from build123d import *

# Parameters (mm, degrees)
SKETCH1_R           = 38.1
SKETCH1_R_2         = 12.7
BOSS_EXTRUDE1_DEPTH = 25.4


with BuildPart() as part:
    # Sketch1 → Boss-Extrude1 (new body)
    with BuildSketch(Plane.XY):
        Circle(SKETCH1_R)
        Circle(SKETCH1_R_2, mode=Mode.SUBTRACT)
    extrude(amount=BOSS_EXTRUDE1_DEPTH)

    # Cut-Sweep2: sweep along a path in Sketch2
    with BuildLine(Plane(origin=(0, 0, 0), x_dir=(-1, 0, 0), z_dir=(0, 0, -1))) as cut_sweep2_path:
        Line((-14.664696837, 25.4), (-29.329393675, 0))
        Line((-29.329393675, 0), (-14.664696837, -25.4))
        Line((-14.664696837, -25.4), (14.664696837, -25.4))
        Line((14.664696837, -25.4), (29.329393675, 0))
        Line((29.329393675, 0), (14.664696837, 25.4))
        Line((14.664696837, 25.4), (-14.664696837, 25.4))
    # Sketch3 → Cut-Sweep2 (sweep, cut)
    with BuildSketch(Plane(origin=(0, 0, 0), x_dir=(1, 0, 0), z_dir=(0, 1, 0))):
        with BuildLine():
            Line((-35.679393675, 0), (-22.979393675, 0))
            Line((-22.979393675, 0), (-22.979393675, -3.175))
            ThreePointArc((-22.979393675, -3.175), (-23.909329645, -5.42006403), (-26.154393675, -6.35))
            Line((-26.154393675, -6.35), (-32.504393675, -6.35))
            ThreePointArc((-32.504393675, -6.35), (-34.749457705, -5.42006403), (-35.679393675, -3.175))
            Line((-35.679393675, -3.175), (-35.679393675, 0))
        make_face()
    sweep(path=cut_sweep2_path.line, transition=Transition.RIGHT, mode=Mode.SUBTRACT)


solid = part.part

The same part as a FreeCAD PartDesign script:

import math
import FreeCAD as App
import Part
import Sketcher
Q = App.Units.Quantity

doc = App.newDocument("Part")
body = doc.addObject("PartDesign::Body", "Body")

# Sketch on XY plane
sketch1 = body.newObject("Sketcher::SketchObject", "Sketch")
sketch1.AttachmentSupport = (doc.getObject("XY_Plane"), [""])
sketch1.MapMode = "FlatFace"
sketch1.addGeometry([
    Part.Circle(App.Vector(0, 0, 0), App.Vector(0, 0, 1), 38.1),
    Part.Circle(App.Vector(0, 0, 0), App.Vector(0, 0, 1), 12.7),
], False)
sketch1.addConstraint([
    Sketcher.Constraint("Coincident", 0, 3, -1, 1),
    Sketcher.Constraint("Coincident", 1, 3, -1, 1),
    Sketcher.Constraint("Diameter", 0, Q("3 in")),
    Sketcher.Constraint("Diameter", 1, Q("1 in")),
])
pad1 = body.newObject("PartDesign::Pad", "Pad")
pad1.Profile = sketch1
pad1.Length = Q("1 in")

# Sketch on XZ plane
sketch2 = body.newObject("Sketcher::SketchObject", "Sketch001")
sketch2.AttachmentSupport = (doc.getObject("XZ_Plane"), [""])
sketch2.MapMode = "FlatFace"
sketch2.addGeometry([
    Part.LineSegment(App.Vector(-22.979394, 0, 0), App.Vector(-35.679394, 0, 0)),  # 0
    Part.LineSegment(App.Vector(-35.679394, 0, 0), App.Vector(-35.679394, 3.175, 0)),  # 1
    Part.ArcOfCircle(Part.Circle(App.Vector(-32.504394, 3.175, 0), App.Vector(0, 0, 1), 3.175), math.radians(90), math.radians(180)),  # 2
    Part.LineSegment(App.Vector(-32.504394, 6.35, 0), App.Vector(-26.154394, 6.35, 0)),  # 3
    Part.ArcOfCircle(Part.Circle(App.Vector(-26.154394, 3.175, 0), App.Vector(0, 0, 1), 3.175), math.radians(0), math.radians(90)),  # 4
    Part.LineSegment(App.Vector(-22.979394, 3.175, 0), App.Vector(-22.979394, 0, 0)),  # 5
], False)
sketch2.addConstraint([
    Sketcher.Constraint("Coincident", 0, 2, 1, 1),
    Sketcher.Constraint("Tangent", 1, 2, 2, 2),
    Sketcher.Constraint("Tangent", 2, 1, 3, 1),
    Sketcher.Constraint("Tangent", 3, 2, 4, 2),
    Sketcher.Constraint("Tangent", 4, 1, 5, 1),
    Sketcher.Constraint("Coincident", 5, 2, 0, 1),
    Sketcher.Constraint("Horizontal", 0),
    Sketcher.Constraint("Vertical", 1),
    Sketcher.Constraint("Horizontal", 3),
    Sketcher.Constraint("Vertical", 5),
    Sketcher.Constraint("Equal", 2, 4),
    Sketcher.Constraint("PointOnObject", 0, 2, -1),
    Sketcher.Constraint("DistanceX", 0, 2, 0, 1, Q("0.5 in")),
    Sketcher.Constraint("Radius", 2, Q("0.125 in")),
    Sketcher.Constraint("DistanceY", 1, 1, 1, 2, Q("0.125 in")),
    Sketcher.Constraint("DistanceX", 2, 3, -1, 1, 32.504394),
])

# Sketch on XY plane
sketch3 = body.newObject("Sketcher::SketchObject", "Sketch002")
sketch3.AttachmentSupport = (doc.getObject("XY_Plane"), [""])
sketch3.MapMode = "FlatFace"
sketch3.addGeometry([
    Part.LineSegment(App.Vector(14.664697, 25.4, 0), App.Vector(29.329394, 0, 0)),  # 0
    Part.LineSegment(App.Vector(29.329394, 0, 0), App.Vector(14.664697, -25.4, 0)),  # 1
    Part.LineSegment(App.Vector(14.664697, -25.4, 0), App.Vector(-14.664697, -25.4, 0)),  # 2
    Part.LineSegment(App.Vector(-14.664697, -25.4, 0), App.Vector(-29.329394, 0, 0)),  # 3
    Part.LineSegment(App.Vector(-29.329394, 0, 0), App.Vector(-14.664697, 25.4, 0)),  # 4
    Part.LineSegment(App.Vector(-14.664697, 25.4, 0), App.Vector(14.664697, 25.4, 0)),  # 5
], False)
sketch3.addConstraint([
    Sketcher.Constraint("Coincident", 0, 2, 1, 1),
    Sketcher.Constraint("Coincident", 1, 2, 2, 1),
    Sketcher.Constraint("Coincident", 2, 2, 3, 1),
    Sketcher.Constraint("Coincident", 3, 2, 4, 1),
    Sketcher.Constraint("Coincident", 4, 2, 5, 1),
    Sketcher.Constraint("Coincident", 5, 2, 0, 1),
    Sketcher.Constraint("Horizontal", 2),
    Sketcher.Constraint("Horizontal", 5),
    Sketcher.Constraint("Symmetric", 0, 2, 3, 2, -1, 1),
    Sketcher.Constraint("Symmetric", 1, 2, 4, 2, -1, 1),
    Sketcher.Constraint("PointOnObject", 0, 2, -1),
    Sketcher.Constraint("Parallel", 0, 3),
    Sketcher.Constraint("Vertical", 2, 2, 4, 2),
    Sketcher.Constraint("DistanceY", 1, 2, -1, 1, Q("1 in")),
    Sketcher.Constraint("Angle", 0, Q("-60 deg")),
    Sketcher.Constraint("DistanceX", 2, 2, 2, 1, 29.329394),
])
doc.recompute()

subtractivepipe = body.newObject("PartDesign::SubtractivePipe", "SubtractivePipe")
subtractivepipe.Profile = sketch2
subtractivepipe.Spine = (sketch3, ["Edge1", "Edge2", "Edge3", "Edge4", "Edge5", "Edge6"])
subtractivepipe.Transition = "Right corner"

doc.recompute()
